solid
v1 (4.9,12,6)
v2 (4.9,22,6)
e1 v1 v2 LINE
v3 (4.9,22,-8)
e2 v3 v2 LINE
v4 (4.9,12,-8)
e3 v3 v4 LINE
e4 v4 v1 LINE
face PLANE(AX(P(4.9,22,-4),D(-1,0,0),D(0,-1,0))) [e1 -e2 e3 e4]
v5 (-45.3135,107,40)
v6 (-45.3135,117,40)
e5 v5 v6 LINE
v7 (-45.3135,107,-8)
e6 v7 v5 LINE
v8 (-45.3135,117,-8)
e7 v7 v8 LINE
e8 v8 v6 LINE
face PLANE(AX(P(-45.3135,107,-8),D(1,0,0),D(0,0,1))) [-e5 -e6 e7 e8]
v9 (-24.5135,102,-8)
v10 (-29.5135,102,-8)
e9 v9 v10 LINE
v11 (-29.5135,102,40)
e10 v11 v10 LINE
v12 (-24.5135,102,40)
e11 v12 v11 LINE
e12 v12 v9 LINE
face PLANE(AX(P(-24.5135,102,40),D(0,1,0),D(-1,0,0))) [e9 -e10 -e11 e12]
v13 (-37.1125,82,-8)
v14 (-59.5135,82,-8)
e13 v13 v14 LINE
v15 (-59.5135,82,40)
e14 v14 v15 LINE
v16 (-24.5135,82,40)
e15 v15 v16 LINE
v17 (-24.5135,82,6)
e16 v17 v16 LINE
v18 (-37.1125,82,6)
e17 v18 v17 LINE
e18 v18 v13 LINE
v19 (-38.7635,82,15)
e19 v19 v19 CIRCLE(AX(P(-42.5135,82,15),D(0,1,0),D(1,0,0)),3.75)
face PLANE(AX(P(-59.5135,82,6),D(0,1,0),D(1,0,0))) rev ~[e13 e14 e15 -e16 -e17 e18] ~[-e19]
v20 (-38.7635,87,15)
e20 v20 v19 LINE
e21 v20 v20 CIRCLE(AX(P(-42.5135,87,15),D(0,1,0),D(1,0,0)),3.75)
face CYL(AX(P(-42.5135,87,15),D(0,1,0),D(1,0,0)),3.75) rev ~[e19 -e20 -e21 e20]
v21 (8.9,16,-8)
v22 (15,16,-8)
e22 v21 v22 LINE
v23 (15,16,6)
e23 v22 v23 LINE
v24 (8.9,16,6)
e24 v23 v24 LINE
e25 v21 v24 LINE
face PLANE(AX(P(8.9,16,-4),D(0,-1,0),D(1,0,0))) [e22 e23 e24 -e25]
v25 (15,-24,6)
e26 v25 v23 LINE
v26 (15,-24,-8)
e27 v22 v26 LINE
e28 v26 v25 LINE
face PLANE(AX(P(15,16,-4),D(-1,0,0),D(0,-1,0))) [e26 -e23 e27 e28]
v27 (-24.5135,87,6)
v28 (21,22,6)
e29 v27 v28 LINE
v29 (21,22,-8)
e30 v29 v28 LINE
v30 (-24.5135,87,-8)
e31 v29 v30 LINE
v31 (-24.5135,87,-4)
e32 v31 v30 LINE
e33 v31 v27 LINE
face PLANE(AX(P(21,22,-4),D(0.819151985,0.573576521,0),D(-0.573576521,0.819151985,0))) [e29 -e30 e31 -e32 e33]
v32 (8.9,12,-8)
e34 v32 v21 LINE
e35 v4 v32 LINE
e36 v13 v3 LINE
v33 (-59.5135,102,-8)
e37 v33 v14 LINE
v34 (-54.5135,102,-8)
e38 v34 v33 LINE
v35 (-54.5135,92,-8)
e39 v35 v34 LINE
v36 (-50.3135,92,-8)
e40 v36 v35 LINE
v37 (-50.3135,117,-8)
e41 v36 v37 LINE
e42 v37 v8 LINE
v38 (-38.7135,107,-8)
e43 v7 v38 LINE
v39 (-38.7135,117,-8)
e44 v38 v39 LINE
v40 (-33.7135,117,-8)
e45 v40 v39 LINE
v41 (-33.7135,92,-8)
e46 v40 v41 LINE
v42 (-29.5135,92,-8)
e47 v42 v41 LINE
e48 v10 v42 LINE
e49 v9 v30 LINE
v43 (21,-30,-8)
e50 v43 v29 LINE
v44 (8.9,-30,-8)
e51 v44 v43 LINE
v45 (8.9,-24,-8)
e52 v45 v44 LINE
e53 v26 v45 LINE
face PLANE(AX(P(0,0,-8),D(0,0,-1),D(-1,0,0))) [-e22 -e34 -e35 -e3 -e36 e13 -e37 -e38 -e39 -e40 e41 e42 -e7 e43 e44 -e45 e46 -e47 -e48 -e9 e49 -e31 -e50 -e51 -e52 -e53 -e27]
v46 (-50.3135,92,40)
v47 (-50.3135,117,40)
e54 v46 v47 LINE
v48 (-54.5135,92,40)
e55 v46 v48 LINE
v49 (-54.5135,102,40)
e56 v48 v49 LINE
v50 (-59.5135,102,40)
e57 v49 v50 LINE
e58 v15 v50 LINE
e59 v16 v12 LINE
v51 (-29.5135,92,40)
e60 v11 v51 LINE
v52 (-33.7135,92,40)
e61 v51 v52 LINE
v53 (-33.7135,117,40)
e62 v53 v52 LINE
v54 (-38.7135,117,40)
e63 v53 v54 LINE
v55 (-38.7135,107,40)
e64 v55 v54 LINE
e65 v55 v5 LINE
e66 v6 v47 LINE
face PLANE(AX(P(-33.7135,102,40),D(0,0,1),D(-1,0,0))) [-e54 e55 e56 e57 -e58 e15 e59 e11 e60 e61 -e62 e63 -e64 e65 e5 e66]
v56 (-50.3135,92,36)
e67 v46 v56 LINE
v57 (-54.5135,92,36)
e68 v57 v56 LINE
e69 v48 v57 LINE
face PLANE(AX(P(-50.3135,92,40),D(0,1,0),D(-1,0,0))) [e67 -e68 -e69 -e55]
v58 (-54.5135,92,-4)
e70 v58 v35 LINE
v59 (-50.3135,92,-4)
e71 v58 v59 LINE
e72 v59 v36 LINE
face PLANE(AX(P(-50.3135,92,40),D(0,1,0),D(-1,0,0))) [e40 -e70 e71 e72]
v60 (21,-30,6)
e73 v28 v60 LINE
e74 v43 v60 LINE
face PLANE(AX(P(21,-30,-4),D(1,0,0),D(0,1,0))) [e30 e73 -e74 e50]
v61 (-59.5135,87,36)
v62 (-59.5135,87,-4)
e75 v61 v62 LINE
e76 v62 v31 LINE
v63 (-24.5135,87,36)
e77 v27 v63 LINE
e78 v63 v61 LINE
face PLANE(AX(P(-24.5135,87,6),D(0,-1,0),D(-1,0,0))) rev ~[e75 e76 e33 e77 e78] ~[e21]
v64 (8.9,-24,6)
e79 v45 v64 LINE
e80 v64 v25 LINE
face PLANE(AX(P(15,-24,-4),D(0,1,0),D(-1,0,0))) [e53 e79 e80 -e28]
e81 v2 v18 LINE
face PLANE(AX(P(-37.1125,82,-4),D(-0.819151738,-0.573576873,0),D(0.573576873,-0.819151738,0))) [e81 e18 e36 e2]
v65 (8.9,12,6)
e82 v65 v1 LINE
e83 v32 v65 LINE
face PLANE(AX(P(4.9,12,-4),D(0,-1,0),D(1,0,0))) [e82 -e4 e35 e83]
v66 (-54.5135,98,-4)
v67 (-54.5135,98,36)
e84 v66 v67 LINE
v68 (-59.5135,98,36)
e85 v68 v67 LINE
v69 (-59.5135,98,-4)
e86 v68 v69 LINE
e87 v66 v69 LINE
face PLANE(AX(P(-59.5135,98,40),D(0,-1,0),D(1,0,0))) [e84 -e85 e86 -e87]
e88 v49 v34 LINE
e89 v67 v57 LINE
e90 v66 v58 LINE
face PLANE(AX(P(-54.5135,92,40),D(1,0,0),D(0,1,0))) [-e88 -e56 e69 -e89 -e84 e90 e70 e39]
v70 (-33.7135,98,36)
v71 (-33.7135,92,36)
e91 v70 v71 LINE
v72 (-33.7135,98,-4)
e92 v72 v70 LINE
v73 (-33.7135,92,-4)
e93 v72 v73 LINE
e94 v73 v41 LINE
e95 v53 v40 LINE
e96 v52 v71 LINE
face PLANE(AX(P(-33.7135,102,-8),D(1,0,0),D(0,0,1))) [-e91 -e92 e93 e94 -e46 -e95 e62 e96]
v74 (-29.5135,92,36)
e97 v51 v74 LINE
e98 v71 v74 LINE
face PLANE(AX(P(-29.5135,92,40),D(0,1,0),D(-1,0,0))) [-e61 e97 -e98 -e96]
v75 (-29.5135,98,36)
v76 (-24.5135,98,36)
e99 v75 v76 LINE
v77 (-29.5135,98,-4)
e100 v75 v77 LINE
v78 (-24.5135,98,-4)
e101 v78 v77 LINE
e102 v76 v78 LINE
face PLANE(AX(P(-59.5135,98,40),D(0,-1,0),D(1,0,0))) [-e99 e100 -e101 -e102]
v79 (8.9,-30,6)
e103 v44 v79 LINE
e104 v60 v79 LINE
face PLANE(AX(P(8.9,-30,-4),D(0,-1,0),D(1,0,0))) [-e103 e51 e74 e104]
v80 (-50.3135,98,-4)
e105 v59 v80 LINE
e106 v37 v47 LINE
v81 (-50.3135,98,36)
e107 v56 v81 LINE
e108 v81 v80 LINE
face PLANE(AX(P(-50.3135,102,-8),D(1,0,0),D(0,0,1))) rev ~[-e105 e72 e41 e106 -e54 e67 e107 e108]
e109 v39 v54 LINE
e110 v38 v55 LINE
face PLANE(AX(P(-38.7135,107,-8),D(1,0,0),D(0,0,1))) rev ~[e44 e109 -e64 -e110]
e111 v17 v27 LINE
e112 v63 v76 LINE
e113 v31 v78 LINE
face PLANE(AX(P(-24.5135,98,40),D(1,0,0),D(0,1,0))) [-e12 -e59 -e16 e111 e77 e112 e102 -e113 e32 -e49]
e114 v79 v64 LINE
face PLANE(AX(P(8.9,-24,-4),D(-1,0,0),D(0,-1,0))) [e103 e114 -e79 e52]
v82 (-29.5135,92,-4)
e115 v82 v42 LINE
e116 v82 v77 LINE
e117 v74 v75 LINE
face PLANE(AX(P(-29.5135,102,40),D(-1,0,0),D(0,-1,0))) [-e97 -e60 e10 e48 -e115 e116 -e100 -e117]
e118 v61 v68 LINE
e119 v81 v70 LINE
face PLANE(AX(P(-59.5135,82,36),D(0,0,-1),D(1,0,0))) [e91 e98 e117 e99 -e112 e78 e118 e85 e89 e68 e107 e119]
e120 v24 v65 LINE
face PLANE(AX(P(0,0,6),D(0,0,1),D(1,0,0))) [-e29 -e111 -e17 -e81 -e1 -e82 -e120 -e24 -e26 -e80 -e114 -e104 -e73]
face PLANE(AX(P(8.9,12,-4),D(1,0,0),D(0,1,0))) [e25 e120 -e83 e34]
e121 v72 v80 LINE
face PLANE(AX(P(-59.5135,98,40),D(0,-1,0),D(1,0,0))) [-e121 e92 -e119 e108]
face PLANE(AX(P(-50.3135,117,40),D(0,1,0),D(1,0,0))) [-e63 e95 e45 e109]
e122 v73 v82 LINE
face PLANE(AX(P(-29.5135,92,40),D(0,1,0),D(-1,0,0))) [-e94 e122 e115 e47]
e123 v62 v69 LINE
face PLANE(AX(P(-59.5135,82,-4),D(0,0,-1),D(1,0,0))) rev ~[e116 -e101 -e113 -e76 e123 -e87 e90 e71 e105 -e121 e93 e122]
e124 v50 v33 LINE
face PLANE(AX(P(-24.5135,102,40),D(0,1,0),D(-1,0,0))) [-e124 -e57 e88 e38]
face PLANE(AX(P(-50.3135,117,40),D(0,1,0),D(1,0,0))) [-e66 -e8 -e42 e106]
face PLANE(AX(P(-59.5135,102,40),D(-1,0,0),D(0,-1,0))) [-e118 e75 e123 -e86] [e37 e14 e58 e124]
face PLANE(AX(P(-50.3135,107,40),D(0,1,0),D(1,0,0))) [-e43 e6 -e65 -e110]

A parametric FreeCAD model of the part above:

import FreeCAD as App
import Part
import Sketcher
from FreeCAD import Vector
Q = App.Units.Quantity


def add_polygon(sketch, points):
    """Adds a closed chain of lines whose ends are joined by coincident constraints."""
    first, n = sketch.GeometryCount, len(points)
    for a, b in zip(points, points[1:] + points[:1]):
        sketch.addGeometry(Part.LineSegment(App.Vector(*a, 0), App.Vector(*b, 0)), False)
    for i in range(n):
        sketch.addConstraint(Sketcher.Constraint("Coincident", first + i, 2, first + (i + 1) % n, 1))

doc = App.newDocument("Part")
body = doc.addObject("PartDesign::Body", "Body")

sketch1 = body.newObject("Sketcher::SketchObject", "Sketch")
sketch1.AttachmentSupport = (doc.getObject("XY_Plane"), [""])
sketch1.MapMode = "FlatFace"
add_polygon(sketch1, [(21, -30), (21, 22), (-24.5135, 87), (-59.5135, 87), (-59.5135, 82), (-37.1125, 82), (4.9, 22), (4.9, 12), (8.9, 12), (8.9, 16), (15, 16), (15, -24), (8.9, -24), (8.9, -30)])
sketch1.addConstraint(Sketcher.Constraint("Vertical", 0))
sketch1.addConstraint(Sketcher.Constraint("Horizontal", 2))
sketch1.addConstraint(Sketcher.Constraint("Vertical", 3))
sketch1.addConstraint(Sketcher.Constraint("Horizontal", 4))
sketch1.addConstraint(Sketcher.Constraint("Vertical", 6))
sketch1.addConstraint(Sketcher.Constraint("Horizontal", 7))
sketch1.addConstraint(Sketcher.Constraint("Vertical", 8))
sketch1.addConstraint(Sketcher.Constraint("Horizontal", 9))
sketch1.addConstraint(Sketcher.Constraint("Vertical", 10))
sketch1.addConstraint(Sketcher.Constraint("Horizontal", 11))
sketch1.addConstraint(Sketcher.Constraint("Vertical", 12))
sketch1.addConstraint(Sketcher.Constraint("Horizontal", 13))
sketch1.addConstraint(Sketcher.Constraint("Parallel", 1, 5))
sketch1.addConstraint(Sketcher.Constraint("Horizontal", 0, 2, 5, 2))
sketch1.addConstraint(Sketcher.Constraint("Vertical", 8, 2, 11, 2))
sketch1.addConstraint(Sketcher.Constraint("Equal", 7, 8))
sketch1.addConstraint(Sketcher.Constraint("DistanceX", 2, 2, 2, 1, Q("35 mm")))
sketch1.addConstraint(Sketcher.Constraint("DistanceX", 7, 1, 7, 2, Q("4 mm")))
sketch1.addConstraint(Sketcher.Constraint("DistanceY", 0, 1, 0, 2, Q("52 mm")))
sketch1.addConstraint(Sketcher.Constraint("DistanceY", 3, 2, 3, 1, Q("5 mm")))
sketch1.addConstraint(Sketcher.Constraint("DistanceY", 6, 2, 6, 1, Q("10 mm")))
sketch1.addConstraint(Sketcher.Constraint("DistanceY", 10, 2, 10, 1, Q("40 mm")))
sketch1.addConstraint(Sketcher.Constraint("DistanceX", 9, 1, 9, 2, Q("6.1 mm")))
sketch1.addConstraint(Sketcher.Constraint("DistanceX", 13, 1, 13, 2, Q("12.1 mm")))
sketch1.addConstraint(Sketcher.Constraint("DistanceX", -1, 1, 9, 2, Q("15 mm")))
sketch1.addConstraint(Sketcher.Constraint("DistanceY", 12, 2, -1, 1, Q("30 mm")))
sketch1.addConstraint(Sketcher.Constraint("DistanceY", 0, 2, 1, 2, Q("65 mm")))
sketch1.addConstraint(Sketcher.Constraint("Angle", 1, Q("125 deg")))
pad1 = body.newObject("PartDesign::Pad", "Pad")
pad1.Profile = sketch1
pad1.Type = "TwoLengths"
pad1.Length = 6
pad1.Length2 = 4

sketch2 = body.newObject("Sketcher::SketchObject", "Sketch001")
sketch2.AttachmentSupport = (doc.getObject("XY_Plane"), [""])
sketch2.MapMode = "FlatFace"
sketch2.AttachmentOffset = App.Placement(Vector(0, 0, 6), App.Rotation())
add_polygon(sketch2, [(-59.5135, 87), (-59.5135, 82), (-24.5135, 82), (-24.5135, 87)])
sketch2.addConstraint(Sketcher.Constraint("Vertical", 0))
sketch2.addConstraint(Sketcher.Constraint("Horizontal", 1))
sketch2.addConstraint(Sketcher.Constraint("Vertical", 2))
sketch2.addConstraint(Sketcher.Constraint("Horizontal", 3))
sketch2.addConstraint(Sketcher.Constraint("DistanceX", 1, 1, 1, 2, Q("35 mm")))
sketch2.addConstraint(Sketcher.Constraint("DistanceY", 0, 2, 0, 1, Q("5 mm")))
sketch2.addConstraint(Sketcher.Constraint("DistanceY", -1, 1, 0, 2, Q("82 mm")))
sketch2.addConstraint(Sketcher.Constraint("DistanceX", 0, 2, -1, 1, Q("59.5135 mm")))
pad2 = body.newObject("PartDesign::Pad", "Pad001")
pad2.Profile = sketch2
pad2.Length = 30

sketch3 = body.newObject("Sketcher::SketchObject", "Sketch002")
sketch3.AttachmentSupport = (doc.getObject("XZ_Plane"), [""])
sketch3.MapMode = "FlatFace"
sketch3.AttachmentOffset = App.Placement(Vector(0, 0, -87), App.Rotation())
sketch3.addGeometry(Part.Circle(Vector(-42.5135, 15, 0), Vector(0, 0, 1), 3.75), False)
sketch3.addConstraint(Sketcher.Constraint("Diameter", 0, Q("7.5 mm")))
sketch3.addConstraint(Sketcher.Constraint("DistanceY", -1, 1, 0, 3, Q("15 mm")))
sketch3.addConstraint(Sketcher.Constraint("DistanceX", 0, 3, -1, 1, Q("42.5135 mm")))
pocket1 = body.newObject("PartDesign::Pocket", "Pocket")
pocket1.Profile = sketch3
pocket1.Length = 30
pocket1.Reversed = True

sketch4 = body.newObject("Sketcher::SketchObject", "Sketch003")
sketch4.AttachmentSupport = (doc.getObject("XZ_Plane"), [""])
sketch4.MapMode = "FlatFace"
sketch4.AttachmentOffset = App.Placement(Vector(0, 0, -82), App.Rotation())
add_polygon(sketch4, [(-59.5135, 40), (-59.5135, 36), (-24.5135, 36), (-24.5135, 40)])
add_polygon(sketch4, [(-24.5135, -4), (-59.5135, -4), (-59.5135, -8), (-24.5135, -8)])
sketch4.addConstraint(Sketcher.Constraint("Vertical", 0))
sketch4.addConstraint(Sketcher.Constraint("Horizontal", 1))
sketch4.addConstraint(Sketcher.Constraint("Vertical", 2))
sketch4.addConstraint(Sketcher.Constraint("Horizontal", 3))
sketch4.addConstraint(Sketcher.Constraint("Horizontal", 4))
sketch4.addConstraint(Sketcher.Constraint("Vertical", 5))
sketch4.addConstraint(Sketcher.Constraint("Horizontal", 6))
sketch4.addConstraint(Sketcher.Constraint("Vertical", 7))
sketch4.addConstraint(Sketcher.Constraint("Vertical", 3, 2, 4, 2))
sketch4.addConstraint(Sketcher.Constraint("Vertical", 2, 2, 6, 2))
sketch4.addConstraint(Sketcher.Constraint("Equal", 2, 5))
sketch4.addConstraint(Sketcher.Constraint("DistanceX", 1, 1, 1, 2, Q("35 mm")))
sketch4.addConstraint(Sketcher.Constraint("DistanceY", 0, 2, 0, 1, Q("4 mm")))
sketch4.addConstraint(Sketcher.Constraint("DistanceY", 4, 2, -1, 1, Q("4 mm")))
sketch4.addConstraint(Sketcher.Constraint("DistanceY", -1, 1, 0, 2, Q("36 mm")))
sketch4.addConstraint(Sketcher.Constraint("DistanceX", 0, 2, -1, 1, Q("59.5135 mm")))
pad3 = body.newObject("PartDesign::Pad", "Pad002")
pad3.Profile = sketch4
pad3.Length = 16
pad3.Reversed = True

sketch5 = body.newObject("Sketcher::SketchObject", "Sketch004")
sketch5.AttachmentSupport = (doc.getObject("XY_Plane"), [""])
sketch5.MapMode = "FlatFace"
sketch5.AttachmentOffset = App.Placement(Vector(0, 0, 40), App.Rotation())
add_polygon(sketch5, [(-59.5135, 102), (-59.5135, 98), (-24.5135, 98), (-24.5135, 102)])
sketch5.addConstraint(Sketcher.Constraint("Vertical", 0))
sketch5.addConstraint(Sketcher.Constraint("Horizontal", 1))
sketch5.addConstraint(Sketcher.Constraint("Vertical", 2))
sketch5.addConstraint(Sketcher.Constraint("Horizontal", 3))
sketch5.addConstraint(Sketcher.Constraint("DistanceX", 1, 1, 1, 2, Q("35 mm")))
sketch5.addConstraint(Sketcher.Constraint("DistanceY", 0, 2, 0, 1, Q("4 mm")))
sketch5.addConstraint(Sketcher.Constraint("DistanceY", -1, 1, 0, 2, Q("98 mm")))
sketch5.addConstraint(Sketcher.Constraint("DistanceX", 0, 2, -1, 1, Q("59.5135 mm")))
pad4 = body.newObject("PartDesign::Pad", "Pad003")
pad4.Profile = sketch5
pad4.Length = 48
pad4.Reversed = True

sketch6 = body.newObject("Sketcher::SketchObject", "Sketch005")
sketch6.AttachmentSupport = (doc.getObject("XY_Plane"), [""])
sketch6.MapMode = "FlatFace"
sketch6.AttachmentOffset = App.Placement(Vector(0, 0, 40), App.Rotation())
add_polygon(sketch6, [(-29.5135, 102), (-33.7135, 102), (-33.7135, 92), (-29.5135, 92)])
add_polygon(sketch6, [(-50.3135, 102), (-54.5135, 102), (-54.5135, 92), (-50.3135, 92)])
sketch6.addConstraint(Sketcher.Constraint("Horizontal", 0))
sketch6.addConstraint(Sketcher.Constraint("Vertical", 1))
sketch6.addConstraint(Sketcher.Constraint("Horizontal", 2))
sketch6.addConstraint(Sketcher.Constraint("Vertical", 3))
sketch6.addConstraint(Sketcher.Constraint("Horizontal", 4))
sketch6.addConstraint(Sketcher.Constraint("Vertical", 5))
sketch6.addConstraint(Sketcher.Constraint("Horizontal", 6))
sketch6.addConstraint(Sketcher.Constraint("Vertical", 7))
sketch6.addConstraint(Sketcher.Constraint("Horizontal", 3, 2, 4, 2))
sketch6.addConstraint(Sketcher.Constraint("Horizontal", 2, 2, 5, 2))
sketch6.addConstraint(Sketcher.Constraint("Equal", 2, 4))
sketch6.addConstraint(Sketcher.Constraint("DistanceY", 1, 2, 1, 1, Q("10 mm")))
sketch6.addConstraint(Sketcher.Constraint("DistanceX", 0, 2, 0, 1, Q("4.2 mm")))
sketch6.addConstraint(Sketcher.Constraint("DistanceY", -1, 1, 0, 2, Q("102 mm")))
sketch6.addConstraint(Sketcher.Constraint("DistanceX", 4, 2, 3, 2, Q("25 mm")))
sketch6.addConstraint(Sketcher.Constraint("DistanceX", 0, 2, -1, 1, Q("33.7135 mm")))
pocket2 = body.newObject("PartDesign::Pocket", "Pocket001")
pocket2.Profile = sketch6
pocket2.Length = 50

sketch7 = body.newObject("Sketcher::SketchObject", "Sketch006")
sketch7.AttachmentSupport = (doc.getObject("XZ_Plane"), [""])
sketch7.MapMode = "FlatFace"
sketch7.AttachmentOffset = App.Placement(Vector(0, 0, -102), App.Rotation())
add_polygon(sketch7, [(-33.7135, -8), (-50.3135, -8), (-50.3135, 40), (-33.7135, 40)])
sketch7.addConstraint(Sketcher.Constraint("Horizontal", 0))
sketch7.addConstraint(Sketcher.Constraint("Vertical", 1))
sketch7.addConstraint(Sketcher.Constraint("Horizontal", 2))
sketch7.addConstraint(Sketcher.Constraint("Vertical", 3))
sketch7.addConstraint(Sketcher.Constraint("DistanceY", 1, 1, 1, 2, Q("48 mm")))
sketch7.addConstraint(Sketcher.Constraint("DistanceX", 0, 2, 0, 1, Q("16.6 mm")))
sketch7.addConstraint(Sketcher.Constraint("DistanceY", 0, 2, -1, 1, Q("8 mm")))
sketch7.addConstraint(Sketcher.Constraint("DistanceX", 0, 2, -1, 1, Q("50.3135 mm")))
pad5 = body.newObject("PartDesign::Pad", "Pad004")
pad5.Profile = sketch7
pad5.Length = 5
pad5.Reversed = True

sketch8 = body.newObject("Sketcher::SketchObject", "Sketch007")
sketch8.AttachmentSupport = (doc.getObject("XZ_Plane"), [""])
sketch8.MapMode = "FlatFace"
sketch8.AttachmentOffset = App.Placement(Vector(0, 0, -107), App.Rotation())
add_polygon(sketch8, [(-45.3135, -8), (-50.3135, -8), (-50.3135, 40), (-45.3135, 40)])
add_polygon(sketch8, [(-38.7135, -8), (-38.7135, 40), (-33.7135, 40), (-33.7135, -8)])
sketch8.addConstraint(Sketcher.Constraint("Horizontal", 0))
sketch8.addConstraint(Sketcher.Constraint("Vertical", 1))
sketch8.addConstraint(Sketcher.Constraint("Horizontal", 2))
sketch8.addConstraint(Sketcher.Constraint("Vertical", 3))
sketch8.addConstraint(Sketcher.Constraint("Vertical", 4))
sketch8.addConstraint(Sketcher.Constraint("Horizontal", 5))
sketch8.addConstraint(Sketcher.Constraint("Vertical", 6))
sketch8.addConstraint(Sketcher.Constraint("Horizontal", 7))
sketch8.addConstraint(Sketcher.Constraint("Horizontal", 2, 2, 4, 2))
sketch8.addConstraint(Sketcher.Constraint("Horizontal", 3, 2, 6, 2))
sketch8.addConstraint(Sketcher.Constraint("Equal", 2, 5))
sketch8.addConstraint(Sketcher.Constraint("DistanceX", 0, 2, 0, 1, Q("5 mm")))
sketch8.addConstraint(Sketcher.Constraint("DistanceY", 1, 1, 1, 2, Q("48 mm")))
sketch8.addConstraint(Sketcher.Constraint("DistanceY", 0, 2, -1, 1, Q("8 mm")))
sketch8.addConstraint(Sketcher.Constraint("DistanceX", 2, 2, 4, 2, Q("6.6 mm")))
sketch8.addConstraint(Sketcher.Constraint("DistanceX", 0, 2, -1, 1, Q("50.3135 mm")))
pad6 = body.newObject("PartDesign::Pad", "Pad005")
pad6.Profile = sketch8
pad6.Length = 10
pad6.Reversed = True

sketch9 = body.newObject("Sketcher::SketchObject", "Sketch008")
sketch9.AttachmentSupport = (doc.getObject("XY_Plane"), [""])
sketch9.MapMode = "FlatFace"
sketch9.AttachmentOffset = App.Placement(Vector(0, 0, -4), App.Rotation())
add_polygon(sketch9, [(4.9, 22), (-37.1125, 82), (-24.5135, 82), (-24.5135, 87), (21, 22), (21, -30), (8.9, -30), (8.9, -24), (15, -24), (15, 16), (8.9, 16), (8.9, 12), (4.9, 12)])
sketch9.addConstraint(Sketcher.Constraint("Horizontal", 1))
sketch9.addConstraint(Sketcher.Constraint("Vertical", 2))
sketch9.addConstraint(Sketcher.Constraint("Vertical", 4))
sketch9.addConstraint(Sketcher.Constraint("Horizontal", 5))
sketch9.addConstraint(Sketcher.Constraint("Vertical", 6))
sketch9.addConstraint(Sketcher.Constraint("Horizontal", 7))
sketch9.addConstraint(Sketcher.Constraint("Vertical", 8))
sketch9.addConstraint(Sketcher.Constraint("Horizontal", 9))
sketch9.addConstraint(Sketcher.Constraint("Vertical", 10))
sketch9.addConstraint(Sketcher.Constraint("Horizontal", 11))
sketch9.addConstraint(Sketcher.Constraint("Vertical", 12))
sketch9.addConstraint(Sketcher.Constraint("Parallel", 0, 3))
sketch9.addConstraint(Sketcher.Constraint("Horizontal", 3, 2, 12, 2))
sketch9.addConstraint(Sketcher.Constraint("Vertical", 6, 2, 9, 2))
sketch9.addConstraint(Sketcher.Constraint("Equal", 11, 10))
sketch9.addConstraint(Sketcher.Constraint("DistanceX", 11, 2, 11, 1, Q("4 mm")))
sketch9.addConstraint(Sketcher.Constraint("DistanceY", 2, 1, 2, 2, Q("5 mm")))
sketch9.addConstraint(Sketcher.Constraint("DistanceY", 4, 2, 4, 1, Q("52 mm")))
sketch9.addConstraint(Sketcher.Constraint("DistanceY", 6, 1, 6, 2, Q("6 mm")))
sketch9.addConstraint(Sketcher.Constraint("DistanceY", 8, 1, 8, 2, Q("40 mm")))
sketch9.addConstraint(Sketcher.Constraint("Angle", 0, Q("125 deg")))
sketch9.addConstraint(Sketcher.Constraint("DistanceX", 5, 2, 5, 1, Q("12.1 mm")))
sketch9.addConstraint(Sketcher.Constraint("DistanceX", 7, 1, 7, 2, Q("6.1 mm")))
sketch9.addConstraint(Sketcher.Constraint("DistanceY", -1, 1, 0, 2, Q("82 mm")))
sketch9.addConstraint(Sketcher.Constraint("DistanceX", -1, 1, 3, 2, Q("21 mm")))
sketch9.addConstraint(Sketcher.Constraint("DistanceY", -1, 1, 3, 2, Q("22 mm")))
pad7 = body.newObject("PartDesign::Pad", "Pad006")
pad7.Profile = sketch9
pad7.Length = 4
pad7.Reversed = True

doc.recompute()
